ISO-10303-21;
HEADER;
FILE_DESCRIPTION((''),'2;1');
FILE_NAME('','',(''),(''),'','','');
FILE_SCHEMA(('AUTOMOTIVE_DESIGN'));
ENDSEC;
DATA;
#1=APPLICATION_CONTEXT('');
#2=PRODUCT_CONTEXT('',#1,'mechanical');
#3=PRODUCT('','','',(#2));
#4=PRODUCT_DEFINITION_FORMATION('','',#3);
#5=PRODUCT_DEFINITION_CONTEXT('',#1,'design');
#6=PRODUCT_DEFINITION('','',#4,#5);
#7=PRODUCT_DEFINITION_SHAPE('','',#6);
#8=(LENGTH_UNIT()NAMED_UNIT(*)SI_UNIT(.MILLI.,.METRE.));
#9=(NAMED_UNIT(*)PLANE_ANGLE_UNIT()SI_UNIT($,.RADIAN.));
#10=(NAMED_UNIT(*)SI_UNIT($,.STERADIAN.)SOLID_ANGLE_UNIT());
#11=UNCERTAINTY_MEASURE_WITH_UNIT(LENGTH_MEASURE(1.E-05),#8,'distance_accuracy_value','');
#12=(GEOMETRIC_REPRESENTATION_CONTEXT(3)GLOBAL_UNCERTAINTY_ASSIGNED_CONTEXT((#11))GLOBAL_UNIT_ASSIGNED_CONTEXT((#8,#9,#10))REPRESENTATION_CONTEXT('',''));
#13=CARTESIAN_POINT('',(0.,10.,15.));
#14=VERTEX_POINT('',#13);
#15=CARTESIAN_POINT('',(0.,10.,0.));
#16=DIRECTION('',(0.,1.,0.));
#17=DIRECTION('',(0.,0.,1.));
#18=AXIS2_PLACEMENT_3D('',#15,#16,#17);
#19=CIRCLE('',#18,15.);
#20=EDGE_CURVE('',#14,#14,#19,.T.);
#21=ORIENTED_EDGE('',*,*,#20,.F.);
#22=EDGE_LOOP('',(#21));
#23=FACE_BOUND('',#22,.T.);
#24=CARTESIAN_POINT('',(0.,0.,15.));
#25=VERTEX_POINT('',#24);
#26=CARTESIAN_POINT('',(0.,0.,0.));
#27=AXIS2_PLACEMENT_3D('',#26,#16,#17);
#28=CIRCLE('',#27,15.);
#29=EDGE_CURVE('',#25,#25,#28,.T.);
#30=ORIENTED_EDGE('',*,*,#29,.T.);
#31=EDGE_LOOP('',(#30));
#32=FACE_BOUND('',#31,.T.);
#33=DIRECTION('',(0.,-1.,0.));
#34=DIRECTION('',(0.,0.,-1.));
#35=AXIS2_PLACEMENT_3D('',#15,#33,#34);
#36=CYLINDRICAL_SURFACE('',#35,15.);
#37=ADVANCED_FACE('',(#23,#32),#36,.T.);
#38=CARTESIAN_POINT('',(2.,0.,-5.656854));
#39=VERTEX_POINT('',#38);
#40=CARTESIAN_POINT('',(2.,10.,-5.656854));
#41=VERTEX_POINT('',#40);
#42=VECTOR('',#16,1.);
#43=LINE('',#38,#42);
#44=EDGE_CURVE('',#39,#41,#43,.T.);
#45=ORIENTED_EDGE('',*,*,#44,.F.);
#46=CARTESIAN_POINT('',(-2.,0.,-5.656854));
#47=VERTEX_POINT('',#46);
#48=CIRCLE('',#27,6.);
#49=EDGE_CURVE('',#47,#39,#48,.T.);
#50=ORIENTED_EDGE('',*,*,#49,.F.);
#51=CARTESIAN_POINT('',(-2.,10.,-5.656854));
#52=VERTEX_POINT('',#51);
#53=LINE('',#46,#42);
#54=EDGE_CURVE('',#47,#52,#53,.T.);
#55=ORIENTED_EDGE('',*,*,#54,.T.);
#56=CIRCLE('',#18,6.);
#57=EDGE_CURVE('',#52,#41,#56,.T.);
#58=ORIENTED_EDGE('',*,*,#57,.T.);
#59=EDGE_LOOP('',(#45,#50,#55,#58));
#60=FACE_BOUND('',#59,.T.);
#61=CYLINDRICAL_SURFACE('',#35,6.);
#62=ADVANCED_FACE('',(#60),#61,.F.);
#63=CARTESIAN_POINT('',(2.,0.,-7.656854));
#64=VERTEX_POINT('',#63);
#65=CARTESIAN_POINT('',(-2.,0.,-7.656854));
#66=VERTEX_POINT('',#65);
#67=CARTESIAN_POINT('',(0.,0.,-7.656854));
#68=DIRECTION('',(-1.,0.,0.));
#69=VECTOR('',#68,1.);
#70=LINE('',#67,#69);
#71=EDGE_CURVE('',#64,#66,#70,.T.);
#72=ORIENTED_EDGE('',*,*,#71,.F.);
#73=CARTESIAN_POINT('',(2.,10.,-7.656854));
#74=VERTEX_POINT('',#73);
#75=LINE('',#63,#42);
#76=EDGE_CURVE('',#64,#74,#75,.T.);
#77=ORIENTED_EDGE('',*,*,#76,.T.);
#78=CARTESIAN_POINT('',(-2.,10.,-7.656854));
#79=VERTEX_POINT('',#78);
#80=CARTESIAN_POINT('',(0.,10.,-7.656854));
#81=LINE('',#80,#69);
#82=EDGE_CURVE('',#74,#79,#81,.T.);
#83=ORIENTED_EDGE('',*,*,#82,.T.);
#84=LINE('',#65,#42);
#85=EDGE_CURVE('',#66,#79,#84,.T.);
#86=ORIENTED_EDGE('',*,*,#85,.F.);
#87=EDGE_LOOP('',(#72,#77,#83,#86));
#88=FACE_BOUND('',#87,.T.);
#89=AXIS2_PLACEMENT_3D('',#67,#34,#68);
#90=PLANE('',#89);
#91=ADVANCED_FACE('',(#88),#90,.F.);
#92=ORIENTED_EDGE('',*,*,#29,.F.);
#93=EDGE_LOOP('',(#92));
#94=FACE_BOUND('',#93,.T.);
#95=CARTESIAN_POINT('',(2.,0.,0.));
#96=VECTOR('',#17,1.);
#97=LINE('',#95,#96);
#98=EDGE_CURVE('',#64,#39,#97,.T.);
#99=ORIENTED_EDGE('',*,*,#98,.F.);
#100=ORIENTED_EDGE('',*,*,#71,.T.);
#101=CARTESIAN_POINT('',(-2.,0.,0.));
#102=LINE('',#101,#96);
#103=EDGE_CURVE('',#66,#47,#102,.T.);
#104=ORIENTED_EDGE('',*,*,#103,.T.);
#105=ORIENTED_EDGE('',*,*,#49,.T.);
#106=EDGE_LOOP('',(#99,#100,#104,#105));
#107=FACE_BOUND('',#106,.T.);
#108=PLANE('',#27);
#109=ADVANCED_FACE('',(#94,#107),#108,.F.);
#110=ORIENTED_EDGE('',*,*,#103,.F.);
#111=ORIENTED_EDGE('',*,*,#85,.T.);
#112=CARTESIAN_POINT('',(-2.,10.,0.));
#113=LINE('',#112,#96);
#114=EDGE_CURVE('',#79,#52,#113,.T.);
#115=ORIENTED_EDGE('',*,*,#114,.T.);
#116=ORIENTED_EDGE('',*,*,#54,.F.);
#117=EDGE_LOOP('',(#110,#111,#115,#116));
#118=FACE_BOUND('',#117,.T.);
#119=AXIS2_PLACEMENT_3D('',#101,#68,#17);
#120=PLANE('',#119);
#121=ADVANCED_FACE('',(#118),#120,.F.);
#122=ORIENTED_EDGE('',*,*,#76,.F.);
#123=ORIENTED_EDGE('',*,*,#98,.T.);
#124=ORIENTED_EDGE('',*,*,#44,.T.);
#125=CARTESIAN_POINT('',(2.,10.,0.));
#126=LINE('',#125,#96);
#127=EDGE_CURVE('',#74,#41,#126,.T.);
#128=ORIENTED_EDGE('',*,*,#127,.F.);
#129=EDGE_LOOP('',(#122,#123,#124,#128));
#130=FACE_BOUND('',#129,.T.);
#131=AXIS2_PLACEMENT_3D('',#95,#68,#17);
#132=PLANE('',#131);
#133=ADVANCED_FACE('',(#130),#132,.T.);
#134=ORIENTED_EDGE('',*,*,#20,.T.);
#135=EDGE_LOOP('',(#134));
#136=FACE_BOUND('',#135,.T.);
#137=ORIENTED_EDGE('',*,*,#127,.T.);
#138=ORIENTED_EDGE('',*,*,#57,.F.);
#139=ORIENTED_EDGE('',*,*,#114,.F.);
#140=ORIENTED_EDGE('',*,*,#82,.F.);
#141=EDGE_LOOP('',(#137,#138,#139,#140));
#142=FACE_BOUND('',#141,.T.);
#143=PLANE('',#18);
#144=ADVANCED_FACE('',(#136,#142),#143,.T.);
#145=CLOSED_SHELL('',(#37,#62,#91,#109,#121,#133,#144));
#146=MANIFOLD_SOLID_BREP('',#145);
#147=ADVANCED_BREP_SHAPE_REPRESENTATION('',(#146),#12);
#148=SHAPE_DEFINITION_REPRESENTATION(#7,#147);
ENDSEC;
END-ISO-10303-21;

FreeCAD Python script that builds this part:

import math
import FreeCAD as App
import Part
import Sketcher

V = App.Vector
Q = App.Units.Quantity

doc = App.newDocument("Part")
body = doc.addObject("PartDesign::Body", "Body")

# Sketch on XZ plane
sketch1 = body.newObject("Sketcher::SketchObject", "Sketch")
sketch1.AttachmentSupport = (doc.getObject("XZ_Plane"), [""])
sketch1.MapMode = "FlatFace"
sketch1.addGeometry(Part.Circle(V(0, 0, 0), V(0, 0, 1), 15), False)
sketch1.addGeometry(Part.Circle(V(0, 0, 0), V(0, 0, 1), 6), False)
sketch1.addConstraint(Sketcher.Constraint("Coincident", 0, 3, -1, 1))
sketch1.addConstraint(Sketcher.Constraint("Coincident", 1, 3, -1, 1))
sketch1.addConstraint(Sketcher.Constraint("Diameter", 0, Q("30 mm")))
sketch1.addConstraint(Sketcher.Constraint("Diameter", 1, Q("12 mm")))
pad1 = body.newObject("PartDesign::Pad", "Pad")
pad1.Profile = sketch1
pad1.Length = 10
pad1.Reversed = True

# Sketch on XZ plane
sketch2 = body.newObject("Sketcher::SketchObject", "Sketch001")
sketch2.AttachmentSupport = (doc.getObject("XZ_Plane"), [""])
sketch2.MapMode = "FlatFace"
sketch2.AttachmentOffset = App.Placement(V(0, 0, -10), App.Rotation())
sketch2.addGeometry(Part.LineSegment(V(2, -5.7, 0), V(2, -7.7, 0)), False)
sketch2.addGeometry(Part.LineSegment(V(2, -7.7, 0), V(-2, -7.7, 0)), False)
sketch2.addGeometry(Part.LineSegment(V(-2, -7.7, 0), V(-2, -5.7, 0)), False)
sketch2.addGeometry(Part.ArcOfCircle(Part.Circle(V(0, 0, 0), V(0, 0, 1), 6), math.radians(-109), math.radians(-71)), False)
sketch2.addConstraint(Sketcher.Constraint("Coincident", 0, 2, 1, 1))
sketch2.addConstraint(Sketcher.Constraint("Coincident", 1, 2, 2, 1))
sketch2.addConstraint(Sketcher.Constraint("Coincident", 2, 2, 3, 1))
sketch2.addConstraint(Sketcher.Constraint("Coincident", 3, 2, 0, 1))
sketch2.addConstraint(Sketcher.Constraint("Vertical", 0))
sketch2.addConstraint(Sketcher.Constraint("Horizontal", 1))
sketch2.addConstraint(Sketcher.Constraint("Vertical", 2))
sketch2.addConstraint(Sketcher.Constraint("Coincident", 3, 3, -1, 1))
sketch2.addConstraint(Sketcher.Constraint("Horizontal", 2, 2, 3, 2))
sketch2.addConstraint(Sketcher.Constraint("Radius", 3, Q("6 mm")))
sketch2.addConstraint(Sketcher.Constraint("DistanceX", 1, 2, 1, 1, Q("4 mm")))
sketch2.addConstraint(Sketcher.Constraint("DistanceY", 0, 2, 0, 1, Q("2 mm")))
pocket1 = body.newObject("PartDesign::Pocket", "Pocket")
pocket1.Profile = sketch2
pocket1.Type = "ThroughAll"
pocket1.Reversed = True

doc.recompute()
